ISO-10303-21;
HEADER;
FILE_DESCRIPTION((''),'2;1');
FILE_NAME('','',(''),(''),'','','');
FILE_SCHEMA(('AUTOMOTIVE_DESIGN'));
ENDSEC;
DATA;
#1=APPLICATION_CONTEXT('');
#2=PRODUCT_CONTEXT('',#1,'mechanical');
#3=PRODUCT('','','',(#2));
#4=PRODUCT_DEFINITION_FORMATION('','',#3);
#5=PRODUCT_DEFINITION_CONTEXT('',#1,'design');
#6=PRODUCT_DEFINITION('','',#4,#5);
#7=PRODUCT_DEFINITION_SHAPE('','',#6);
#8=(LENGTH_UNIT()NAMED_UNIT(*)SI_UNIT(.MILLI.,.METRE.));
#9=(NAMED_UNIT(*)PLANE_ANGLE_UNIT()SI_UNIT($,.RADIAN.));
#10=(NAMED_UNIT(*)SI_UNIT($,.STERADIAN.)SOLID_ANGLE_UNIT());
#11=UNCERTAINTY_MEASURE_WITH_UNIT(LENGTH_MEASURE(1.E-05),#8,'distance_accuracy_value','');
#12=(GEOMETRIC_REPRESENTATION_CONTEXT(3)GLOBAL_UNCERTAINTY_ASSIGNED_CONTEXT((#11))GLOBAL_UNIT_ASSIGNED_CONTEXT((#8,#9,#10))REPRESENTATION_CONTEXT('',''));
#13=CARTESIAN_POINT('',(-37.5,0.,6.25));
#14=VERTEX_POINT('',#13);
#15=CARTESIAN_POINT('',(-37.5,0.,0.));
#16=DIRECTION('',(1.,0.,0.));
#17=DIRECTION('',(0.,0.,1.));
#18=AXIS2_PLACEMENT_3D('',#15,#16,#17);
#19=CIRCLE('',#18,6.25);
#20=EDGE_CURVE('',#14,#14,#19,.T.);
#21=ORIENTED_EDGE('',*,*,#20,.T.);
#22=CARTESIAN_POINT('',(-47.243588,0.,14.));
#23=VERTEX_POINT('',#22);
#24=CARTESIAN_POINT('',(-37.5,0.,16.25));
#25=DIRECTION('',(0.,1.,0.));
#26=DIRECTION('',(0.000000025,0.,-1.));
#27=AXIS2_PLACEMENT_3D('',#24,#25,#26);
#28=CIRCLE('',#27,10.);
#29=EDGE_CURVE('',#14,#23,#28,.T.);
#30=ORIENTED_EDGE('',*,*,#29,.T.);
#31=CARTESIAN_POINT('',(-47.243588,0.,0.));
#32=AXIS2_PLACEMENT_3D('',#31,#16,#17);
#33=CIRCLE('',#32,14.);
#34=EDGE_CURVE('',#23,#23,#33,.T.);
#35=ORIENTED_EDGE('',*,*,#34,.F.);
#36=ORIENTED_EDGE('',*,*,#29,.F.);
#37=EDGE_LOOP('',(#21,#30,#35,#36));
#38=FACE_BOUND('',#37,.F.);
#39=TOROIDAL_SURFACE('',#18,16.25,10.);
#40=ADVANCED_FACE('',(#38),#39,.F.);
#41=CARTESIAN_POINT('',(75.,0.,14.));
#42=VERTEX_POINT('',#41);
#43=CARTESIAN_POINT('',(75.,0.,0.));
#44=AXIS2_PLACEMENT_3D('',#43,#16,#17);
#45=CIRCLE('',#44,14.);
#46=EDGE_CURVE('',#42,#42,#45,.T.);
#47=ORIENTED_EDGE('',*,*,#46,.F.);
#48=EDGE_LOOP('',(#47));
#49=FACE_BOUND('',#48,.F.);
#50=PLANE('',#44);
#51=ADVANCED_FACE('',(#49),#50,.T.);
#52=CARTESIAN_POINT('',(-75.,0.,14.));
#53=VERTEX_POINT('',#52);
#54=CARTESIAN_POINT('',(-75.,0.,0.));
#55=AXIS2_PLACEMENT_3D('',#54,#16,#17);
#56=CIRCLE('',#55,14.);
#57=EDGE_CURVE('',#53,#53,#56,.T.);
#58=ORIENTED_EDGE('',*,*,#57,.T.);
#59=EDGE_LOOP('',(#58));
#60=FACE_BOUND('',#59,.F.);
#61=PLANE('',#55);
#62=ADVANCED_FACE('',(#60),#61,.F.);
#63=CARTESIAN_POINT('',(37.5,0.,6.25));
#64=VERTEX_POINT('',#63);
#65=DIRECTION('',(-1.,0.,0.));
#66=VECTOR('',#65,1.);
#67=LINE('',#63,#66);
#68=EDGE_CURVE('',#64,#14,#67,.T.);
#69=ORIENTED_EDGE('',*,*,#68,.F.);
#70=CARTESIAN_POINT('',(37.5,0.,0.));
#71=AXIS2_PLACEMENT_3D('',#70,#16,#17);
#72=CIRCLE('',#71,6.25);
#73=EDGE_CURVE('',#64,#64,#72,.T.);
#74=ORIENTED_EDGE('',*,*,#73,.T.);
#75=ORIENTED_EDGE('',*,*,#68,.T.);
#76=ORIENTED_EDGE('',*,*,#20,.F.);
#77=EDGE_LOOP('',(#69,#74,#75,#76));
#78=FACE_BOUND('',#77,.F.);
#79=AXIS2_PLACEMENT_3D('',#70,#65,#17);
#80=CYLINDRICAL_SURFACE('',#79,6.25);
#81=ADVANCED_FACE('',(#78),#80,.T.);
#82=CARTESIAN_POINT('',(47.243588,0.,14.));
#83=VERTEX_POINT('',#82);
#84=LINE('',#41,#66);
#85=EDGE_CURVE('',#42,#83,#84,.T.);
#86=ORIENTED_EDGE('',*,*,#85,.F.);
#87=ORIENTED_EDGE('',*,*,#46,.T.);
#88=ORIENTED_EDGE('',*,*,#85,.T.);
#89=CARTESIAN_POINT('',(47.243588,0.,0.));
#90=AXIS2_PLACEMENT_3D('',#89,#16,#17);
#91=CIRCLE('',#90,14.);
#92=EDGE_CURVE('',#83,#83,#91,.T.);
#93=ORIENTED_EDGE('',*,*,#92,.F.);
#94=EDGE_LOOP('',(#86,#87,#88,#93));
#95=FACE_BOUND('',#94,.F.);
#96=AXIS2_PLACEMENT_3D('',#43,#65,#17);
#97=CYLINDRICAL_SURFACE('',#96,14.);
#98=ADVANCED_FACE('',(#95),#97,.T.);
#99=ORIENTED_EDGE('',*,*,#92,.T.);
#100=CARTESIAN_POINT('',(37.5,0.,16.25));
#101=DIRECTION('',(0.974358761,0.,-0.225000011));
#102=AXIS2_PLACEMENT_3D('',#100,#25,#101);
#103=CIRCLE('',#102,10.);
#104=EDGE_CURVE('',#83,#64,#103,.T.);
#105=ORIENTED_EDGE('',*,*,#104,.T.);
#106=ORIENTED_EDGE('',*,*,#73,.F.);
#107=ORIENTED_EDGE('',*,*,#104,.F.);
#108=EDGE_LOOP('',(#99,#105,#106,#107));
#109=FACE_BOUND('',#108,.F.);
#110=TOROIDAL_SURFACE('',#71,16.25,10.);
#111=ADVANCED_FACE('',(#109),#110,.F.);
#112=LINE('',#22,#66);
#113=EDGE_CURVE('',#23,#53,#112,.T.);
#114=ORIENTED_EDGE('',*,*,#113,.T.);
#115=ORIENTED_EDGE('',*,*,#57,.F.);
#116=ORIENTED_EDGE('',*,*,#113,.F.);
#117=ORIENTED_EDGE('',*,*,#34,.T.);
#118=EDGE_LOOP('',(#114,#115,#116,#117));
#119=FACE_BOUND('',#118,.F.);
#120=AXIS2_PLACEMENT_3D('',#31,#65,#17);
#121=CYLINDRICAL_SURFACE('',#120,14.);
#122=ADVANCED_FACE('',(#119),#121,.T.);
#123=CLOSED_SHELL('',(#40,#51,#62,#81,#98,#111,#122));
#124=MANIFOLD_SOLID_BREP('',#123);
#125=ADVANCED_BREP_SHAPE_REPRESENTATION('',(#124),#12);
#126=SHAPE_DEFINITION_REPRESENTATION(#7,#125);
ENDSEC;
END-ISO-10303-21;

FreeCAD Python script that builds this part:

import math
import FreeCAD as App
import Part
import Sketcher

V = App.Vector
Q = App.Units.Quantity

doc = App.newDocument("Part")
body = doc.addObject("PartDesign::Body", "Body")

sketch1 = body.newObject("Sketcher::SketchObject", "Sketch")
sketch1.AttachmentSupport = (doc.getObject("XZ_Plane"), [""])
sketch1.MapMode = "FlatFace"
sketch1.addGeometry([
    Part.LineSegment(V(38, 6, 0), V(-38, 6, 0)),
    Part.ArcOfCircle(Part.Circle(V(-38, 16, 0), V(0, 0, 1), 10), math.radians(-167), math.radians(-90)),
    Part.LineSegment(V(-47, 14, 0), V(-75, 14, 0)),
    Part.LineSegment(V(-75, 14, 0), V(-75, 0, 0)),
    Part.LineSegment(V(-75, 0, 0), V(75, 0, 0)),
    Part.LineSegment(V(75, 0, 0), V(75, 14, 0)),
    Part.LineSegment(V(75, 14, 0), V(47, 14, 0)),
    Part.ArcOfCircle(Part.Circle(V(38, 16, 0), V(0, 0, 1), 10), math.radians(-90), math.radians(-13)),
], False)
sketch1.addConstraint([
    Sketcher.Constraint("Tangent", 0, 2, 1, 2),
    Sketcher.Constraint("Coincident", 1, 1, 2, 1),
    Sketcher.Constraint("Coincident", 2, 2, 3, 1),
    Sketcher.Constraint("Coincident", 3, 2, 4, 1),
    Sketcher.Constraint("Coincident", 4, 2, 5, 1),
    Sketcher.Constraint("Coincident", 5, 2, 6, 1),
    Sketcher.Constraint("Coincident", 6, 2, 7, 2),
    Sketcher.Constraint("Tangent", 7, 1, 0, 1),
    Sketcher.Constraint("Horizontal", 0),
    Sketcher.Constraint("Horizontal", 2),
    Sketcher.Constraint("Vertical", 3),
    Sketcher.Constraint("Horizontal", 4),
    Sketcher.Constraint("Vertical", 5),
    Sketcher.Constraint("Horizontal", 6),
    Sketcher.Constraint("Equal", 1, 7),
    Sketcher.Constraint("Symmetric", 3, 2, 4, 2, -1, 1),
    Sketcher.Constraint("Symmetric", 1, 1, 6, 2, -2),
    Sketcher.Constraint("Radius", 1, Q("10 mm")),
    Sketcher.Constraint("DistanceX", 0, 2, 0, 1, Q("75 mm")),
    Sketcher.Constraint("DistanceX", 4, 1, 4, 2, Q("150 mm")),
    Sketcher.Constraint("DistanceY", 3, 2, 3, 1, Q("14 mm")),
    Sketcher.Constraint("DistanceY", -1, 1, 1, 3, Q("16.25 mm")),
])
revolution = body.newObject("PartDesign::Revolution", "Revolution")
revolution.Profile = sketch1
revolution.ReferenceAxis = (sketch1, ["H_Axis"])
revolution.Angle = 360

doc.recompute()
